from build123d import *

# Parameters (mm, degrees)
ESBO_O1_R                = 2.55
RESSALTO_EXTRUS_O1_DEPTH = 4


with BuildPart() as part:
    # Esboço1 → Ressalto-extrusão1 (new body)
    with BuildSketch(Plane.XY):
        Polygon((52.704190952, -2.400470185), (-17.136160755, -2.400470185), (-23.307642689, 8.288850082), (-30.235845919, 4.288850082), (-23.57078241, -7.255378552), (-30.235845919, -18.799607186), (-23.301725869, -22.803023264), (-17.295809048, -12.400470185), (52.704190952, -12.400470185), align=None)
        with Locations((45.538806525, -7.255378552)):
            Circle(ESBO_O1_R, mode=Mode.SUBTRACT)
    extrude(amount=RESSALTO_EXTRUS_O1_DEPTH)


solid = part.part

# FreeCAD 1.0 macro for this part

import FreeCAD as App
import Part
import Sketcher
from FreeCAD import Vector
Q = App.Units.Quantity

doc = App.newDocument("Part")
body = doc.addObject("PartDesign::Body", "Body")

# Sketch on XY plane
sketch1 = doc.addObject("Sketcher::SketchObject", "Sketch")
body.addObject(sketch1)
sketch1.AttachmentSupport = (doc.XY_Plane, [""])
sketch1.MapMode = "FlatFace"
sketch1.addGeometry([
    Part.LineSegment(Vector(52.7, -2.4, 0), Vector(-17.1, -2.4, 0)),  # 0
    Part.LineSegment(Vector(-17.1, -2.4, 0), Vector(-23.3, 8.3, 0)),  # 1
    Part.LineSegment(Vector(-23.3, 8.3, 0), Vector(-30.2, 4.3, 0)),  # 2
    Part.LineSegment(Vector(-30.2, 4.3, 0), Vector(-23.6, -7.3, 0)),  # 3
    Part.LineSegment(Vector(-23.6, -7.3, 0), Vector(-30.2, -18.8, 0)),  # 4
    Part.LineSegment(Vector(-30.2, -18.8, 0), Vector(-23.3, -22.8, 0)),  # 5
    Part.LineSegment(Vector(-23.3, -22.8, 0), Vector(-17.3, -12.4, 0)),  # 6
    Part.LineSegment(Vector(-17.3, -12.4, 0), Vector(52.7, -12.4, 0)),  # 7
    Part.LineSegment(Vector(52.7, -12.4, 0), Vector(52.7, -2.4, 0)),  # 8
    Part.Circle(Vector(45.5, -7.3, 0), Vector(0, 0, 1), 2.5),  # 9
], False)
sketch1.addConstraint([
    Sketcher.Constraint("Coincident", 0, 2, 1, 1),
    Sketcher.Constraint("Coincident", 1, 2, 2, 1),
    Sketcher.Constraint("Coincident", 2, 2, 3, 1),
    Sketcher.Constraint("Coincident", 3, 2, 4, 1),
    Sketcher.Constraint("Coincident", 4, 2, 5, 1),
    Sketcher.Constraint("Coincident", 5, 2, 6, 1),
    Sketcher.Constraint("Coincident", 6, 2, 7, 1),
    Sketcher.Constraint("Coincident", 7, 2, 8, 1),
    Sketcher.Constraint("Coincident", 8, 2, 0, 1),
    Sketcher.Constraint("Horizontal", 0),
    Sketcher.Constraint("Horizontal", 7),
    Sketcher.Constraint("Vertical", 8),
    Sketcher.Constraint("Perpendicular", 1, 2),
    Sketcher.Constraint("Perpendicular", 2, 3),
    Sketcher.Constraint("Perpendicular", 4, 5),
    Sketcher.Constraint("Perpendicular", 5, 6),
    Sketcher.Constraint("Horizontal", 9, 3, 3, 2),
    Sketcher.Constraint("Vertical", 2, 2, 4, 2),
    Sketcher.Constraint("Equal", 3, 4),
    Sketcher.Constraint("Diameter", 9, 5.1),
    Sketcher.Constraint("DistanceX", 7, 1, 7, 2, 70.0),
    Sketcher.Constraint("DistanceY", 8, 1, 8, 2, 10.0),
    Sketcher.Constraint("Angle", 1, Q("120 deg")),
    Sketcher.Constraint("Distance", 2, 8.0),
    Sketcher.Constraint("DistanceX", 0, 2, 0, 1, 69.840352),
    Sketcher.Constraint("DistanceY", 9, 3, -1, 1, 7.255379),
    Sketcher.Constraint("DistanceX", 0, 2, -1, 1, 17.136161),
    Sketcher.Constraint("DistanceY", 0, 2, -1, 1, 2.40047),
    Sketcher.Constraint("DistanceY", -1, 1, 1, 2, 8.28885),
    Sketcher.Constraint("DistanceX", 1, 2, 9, 3, 68.846449),
])
pad1 = doc.addObject("PartDesign::Pad", "Pad")
body.addObject(pad1)
pad1.Profile = sketch1
pad1.Length = 4

doc.recompute()
